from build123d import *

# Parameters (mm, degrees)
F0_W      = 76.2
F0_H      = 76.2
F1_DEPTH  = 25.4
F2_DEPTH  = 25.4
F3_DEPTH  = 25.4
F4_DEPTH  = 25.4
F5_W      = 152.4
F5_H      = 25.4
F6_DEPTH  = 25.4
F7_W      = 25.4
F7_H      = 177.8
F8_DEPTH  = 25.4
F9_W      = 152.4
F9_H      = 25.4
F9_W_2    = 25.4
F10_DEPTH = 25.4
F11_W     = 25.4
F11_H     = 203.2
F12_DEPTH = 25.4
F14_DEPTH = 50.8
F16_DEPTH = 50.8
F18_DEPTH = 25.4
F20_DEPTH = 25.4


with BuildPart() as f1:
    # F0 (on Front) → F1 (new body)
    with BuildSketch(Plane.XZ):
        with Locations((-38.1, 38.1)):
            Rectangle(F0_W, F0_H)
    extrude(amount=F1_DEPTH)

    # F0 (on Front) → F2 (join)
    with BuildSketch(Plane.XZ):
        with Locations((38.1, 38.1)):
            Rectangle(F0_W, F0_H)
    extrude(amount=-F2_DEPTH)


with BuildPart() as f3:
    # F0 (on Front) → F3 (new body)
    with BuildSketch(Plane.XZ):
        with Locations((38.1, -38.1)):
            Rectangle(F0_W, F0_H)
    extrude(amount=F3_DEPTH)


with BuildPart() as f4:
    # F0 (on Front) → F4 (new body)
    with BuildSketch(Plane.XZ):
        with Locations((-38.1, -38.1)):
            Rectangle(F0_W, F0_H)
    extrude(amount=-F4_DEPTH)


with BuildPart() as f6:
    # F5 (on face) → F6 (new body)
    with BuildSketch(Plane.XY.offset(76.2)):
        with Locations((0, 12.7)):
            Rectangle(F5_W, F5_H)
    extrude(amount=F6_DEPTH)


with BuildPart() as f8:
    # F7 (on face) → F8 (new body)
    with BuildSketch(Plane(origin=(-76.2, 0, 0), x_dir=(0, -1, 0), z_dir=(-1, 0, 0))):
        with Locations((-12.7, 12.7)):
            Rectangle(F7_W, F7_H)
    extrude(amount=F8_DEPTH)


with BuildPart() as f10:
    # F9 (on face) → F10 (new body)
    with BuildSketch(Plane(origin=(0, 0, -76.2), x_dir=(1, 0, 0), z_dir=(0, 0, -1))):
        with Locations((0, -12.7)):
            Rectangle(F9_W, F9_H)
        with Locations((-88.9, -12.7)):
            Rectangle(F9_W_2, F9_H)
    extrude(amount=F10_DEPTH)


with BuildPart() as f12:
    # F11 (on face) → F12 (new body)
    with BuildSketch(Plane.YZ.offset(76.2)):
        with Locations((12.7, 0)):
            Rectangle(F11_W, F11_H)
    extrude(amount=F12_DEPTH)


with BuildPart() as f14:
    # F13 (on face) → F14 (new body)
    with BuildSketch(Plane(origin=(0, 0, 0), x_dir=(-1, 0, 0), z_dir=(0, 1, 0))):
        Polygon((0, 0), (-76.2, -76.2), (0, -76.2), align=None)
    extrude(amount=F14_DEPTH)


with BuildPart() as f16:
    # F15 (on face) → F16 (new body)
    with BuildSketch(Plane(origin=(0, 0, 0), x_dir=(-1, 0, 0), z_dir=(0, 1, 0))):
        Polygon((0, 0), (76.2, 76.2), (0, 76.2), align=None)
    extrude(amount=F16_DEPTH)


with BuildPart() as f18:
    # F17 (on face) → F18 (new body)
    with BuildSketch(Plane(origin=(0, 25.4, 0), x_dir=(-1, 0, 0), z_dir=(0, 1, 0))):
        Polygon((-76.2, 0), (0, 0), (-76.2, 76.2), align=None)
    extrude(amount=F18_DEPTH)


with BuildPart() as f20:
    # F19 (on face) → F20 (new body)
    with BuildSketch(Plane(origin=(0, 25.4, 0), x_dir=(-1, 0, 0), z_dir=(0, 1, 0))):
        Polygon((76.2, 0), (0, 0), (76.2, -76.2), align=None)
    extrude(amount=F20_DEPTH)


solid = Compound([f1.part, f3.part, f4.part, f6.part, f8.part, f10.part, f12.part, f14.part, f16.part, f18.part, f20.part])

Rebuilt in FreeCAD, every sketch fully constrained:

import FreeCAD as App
import Part
import Sketcher
from FreeCAD import Vector
Q = App.Units.Quantity

doc = App.newDocument("Part")
params = doc.addObject("Spreadsheet::Sheet", "Params")
for row, (alias, value) in enumerate([
    ("sketch1_width", "3 in"),
    ("pad1_length", "1 in"),
    ("sketch2_width", "3 in"),
    ("pad2_length", "1 in"),
    ("sketch3_width", "3 in"),
    ("pad3_length", "1 in"),
    ("sketch4_width", "3 in"),
    ("pad4_length", "1 in"),
    ("sketch5_width", "6 in"),
    ("sketch5_height", "1 in"),
    ("pad5_length", "1 in"),
    ("sketch6_width", "1 in"),
    ("sketch6_height", "7 in"),
    ("pad6_length", "1 in"),
    ("sketch7_width", "7 in"),
    ("sketch7_height", "1 in"),
    ("pad7_length", "1 in"),
    ("sketch8_width", "1 in"),
    ("sketch8_height", "8 in"),
    ("pad8_length", "1 in"),
    ("sketch9_width", "3 in"),
    ("pad9_length", "2 in"),
    ("sketch10_width", "3 in"),
    ("pad10_length", "2 in"),
    ("sketch11_width", "3 in"),
    ("pad11_length", "1 in"),
    ("sketch12_width", "3 in"),
    ("pad12_length", "1 in"),
], start=1):
    params.set(f"A{row}", alias)
    params.set(f"B{row}", "=" + value)
    params.setAlias(f"B{row}", alias)

body = doc.addObject("PartDesign::Body", "Body")
body.AllowCompound = True

# Sketch on XZ plane
sketch1 = body.newObject("Sketcher::SketchObject", "Sketch")
sketch1.AttachmentSupport = (doc.getObject("XZ_Plane"), [""])
sketch1.MapMode = "FlatFace"
sketch1.addGeometry([
    Part.LineSegment(Vector(-76.2, 76.2, 0), Vector(-76.2, 0, 0)),
    Part.LineSegment(Vector(-76.2, 0, 0), Vector(0, 0, 0)),
    Part.LineSegment(Vector(0, 0, 0), Vector(0, 76.2, 0)),
    Part.LineSegment(Vector(0, 76.2, 0), Vector(-76.2, 76.2, 0)),
], False)
sketch1.addConstraint([
    Sketcher.Constraint("Coincident", 0, 2, 1, 1),
    Sketcher.Constraint("Coincident", 1, 2, 2, 1),
    Sketcher.Constraint("Coincident", 2, 2, 3, 1),
    Sketcher.Constraint("Coincident", 3, 2, 0, 1),
    Sketcher.Constraint("Vertical", 0),
    Sketcher.Constraint("Horizontal", 1),
    Sketcher.Constraint("Vertical", 2),
    Sketcher.Constraint("Horizontal", 3),
    Sketcher.Constraint("Coincident", 1, 2, -1, 1),
    Sketcher.Constraint("Equal", 3, 0),
    Sketcher.Constraint("DistanceX", 1, 1, 1, 2, Q("3 in")),
])
sketch1.setExpression("Constraints[10]", "Params.sketch1_width")
pad1 = body.newObject("PartDesign::Pad", "Pad")
pad1.Profile = sketch1
pad1.setExpression("Length", "Params.pad1_length")

# Sketch on XZ plane
sketch2 = body.newObject("Sketcher::SketchObject", "Sketch001")
sketch2.AttachmentSupport = (doc.getObject("XZ_Plane"), [""])
sketch2.MapMode = "FlatFace"
sketch2.addGeometry([
    Part.LineSegment(Vector(0, 76.2, 0), Vector(0, 0, 0)),
    Part.LineSegment(Vector(0, 0, 0), Vector(76.2, 0, 0)),
    Part.LineSegment(Vector(76.2, 0, 0), Vector(76.2, 76.2, 0)),
    Part.LineSegment(Vector(76.2, 76.2, 0), Vector(0, 76.2, 0)),
], False)
sketch2.addConstraint([
    Sketcher.Constraint("Coincident", 0, 2, 1, 1),
    Sketcher.Constraint("Coincident", 1, 2, 2, 1),
    Sketcher.Constraint("Coincident", 2, 2, 3, 1),
    Sketcher.Constraint("Coincident", 3, 2, 0, 1),
    Sketcher.Constraint("Vertical", 0),
    Sketcher.Constraint("Horizontal", 1),
    Sketcher.Constraint("Vertical", 2),
    Sketcher.Constraint("Horizontal", 3),
    Sketcher.Constraint("Coincident", 0, 2, -1, 1),
    Sketcher.Constraint("Equal", 3, 0),
    Sketcher.Constraint("DistanceX", 1, 1, 1, 2, Q("3 in")),
])
sketch2.setExpression("Constraints[10]", "Params.sketch2_width")
pad2 = body.newObject("PartDesign::Pad", "Pad001")
pad2.Profile = sketch2
pad2.setExpression("Length", "Params.pad2_length")
pad2.Reversed = True
body2 = doc.addObject("PartDesign::Body", "Body001")

# Sketch on XZ plane
sketch3 = body2.newObject("Sketcher::SketchObject", "Sketch002")
sketch3.AttachmentSupport = (doc.getObject("XZ_Plane001"), [""])
sketch3.MapMode = "FlatFace"
sketch3.addGeometry([
    Part.LineSegment(Vector(0, 0, 0), Vector(0, -76.2, 0)),
    Part.LineSegment(Vector(0, -76.2, 0), Vector(76.2, -76.2, 0)),
    Part.LineSegment(Vector(76.2, -76.2, 0), Vector(76.2, 0, 0)),
    Part.LineSegment(Vector(76.2, 0, 0), Vector(0, 0, 0)),
], False)
sketch3.addConstraint([
    Sketcher.Constraint("Coincident", 0, 2, 1, 1),
    Sketcher.Constraint("Coincident", 1, 2, 2, 1),
    Sketcher.Constraint("Coincident", 2, 2, 3, 1),
    Sketcher.Constraint("Coincident", 3, 2, 0, 1),
    Sketcher.Constraint("Vertical", 0),
    Sketcher.Constraint("Horizontal", 1),
    Sketcher.Constraint("Vertical", 2),
    Sketcher.Constraint("Horizontal", 3),
    Sketcher.Constraint("Coincident", 3, 2, -1, 1),
    Sketcher.Constraint("Equal", 3, 0),
    Sketcher.Constraint("DistanceX", 1, 1, 1, 2, Q("3 in")),
])
sketch3.setExpression("Constraints[10]", "Params.sketch3_width")
pad3 = body2.newObject("PartDesign::Pad", "Pad002")
pad3.Profile = sketch3
pad3.setExpression("Length", "Params.pad3_length")
body3 = doc.addObject("PartDesign::Body", "Body002")

# Sketch on XZ plane
sketch4 = body3.newObject("Sketcher::SketchObject", "Sketch003")
sketch4.AttachmentSupport = (doc.getObject("XZ_Plane002"), [""])
sketch4.MapMode = "FlatFace"
sketch4.addGeometry([
    Part.LineSegment(Vector(-76.2, 0, 0), Vector(-76.2, -76.2, 0)),
    Part.LineSegment(Vector(-76.2, -76.2, 0), Vector(0, -76.2, 0)),
    Part.LineSegment(Vector(0, -76.2, 0), Vector(0, 0, 0)),
    Part.LineSegment(Vector(0, 0, 0), Vector(-76.2, 0, 0)),
], False)
sketch4.addConstraint([
    Sketcher.Constraint("Coincident", 0, 2, 1, 1),
    Sketcher.Constraint("Coincident", 1, 2, 2, 1),
    Sketcher.Constraint("Coincident", 2, 2, 3, 1),
    Sketcher.Constraint("Coincident", 3, 2, 0, 1),
    Sketcher.Constraint("Vertical", 0),
    Sketcher.Constraint("Horizontal", 1),
    Sketcher.Constraint("Vertical", 2),
    Sketcher.Constraint("Horizontal", 3),
    Sketcher.Constraint("Coincident", 2, 2, -1, 1),
    Sketcher.Constraint("Equal", 3, 0),
    Sketcher.Constraint("DistanceX", 1, 1, 1, 2, Q("3 in")),
])
sketch4.setExpression("Constraints[10]", "Params.sketch4_width")
pad4 = body3.newObject("PartDesign::Pad", "Pad003")
pad4.Profile = sketch4
pad4.setExpression("Length", "Params.pad4_length")
pad4.Reversed = True
body4 = doc.addObject("PartDesign::Body", "Body003")

# Sketch on XY plane
sketch5 = body4.newObject("Sketcher::SketchObject", "Sketch004")
sketch5.AttachmentSupport = (doc.getObject("XY_Plane003"), [""])
sketch5.MapMode = "FlatFace"
sketch5.AttachmentOffset = App.Placement(Vector(0, 0, 3 * 25.4), App.Rotation())
sketch5.addGeometry([
    Part.LineSegment(Vector(-76.2, 25.4, 0), Vector(-76.2, 0, 0)),
    Part.LineSegment(Vector(-76.2, 0, 0), Vector(76.2, 0, 0)),
    Part.LineSegment(Vector(76.2, 0, 0), Vector(76.2, 25.4, 0)),
    Part.LineSegment(Vector(76.2, 25.4, 0), Vector(-76.2, 25.4, 0)),
], False)
sketch5.addConstraint([
    Sketcher.Constraint("Coincident", 0, 2, 1, 1),
    Sketcher.Constraint("Coincident", 1, 2, 2, 1),
    Sketcher.Constraint("Coincident", 2, 2, 3, 1),
    Sketcher.Constraint("Coincident", 3, 2, 0, 1),
    Sketcher.Constraint("Vertical", 0),
    Sketcher.Constraint("Horizontal", 1),
    Sketcher.Constraint("Vertical", 2),
    Sketcher.Constraint("Horizontal", 3),
    Sketcher.Constraint("Symmetric", 0, 2, 1, 2, -1, 1),
    Sketcher.Constraint("DistanceX", 1, 1, 1, 2, Q("6 in")),
    Sketcher.Constraint("DistanceY", 0, 2, 0, 1, Q("1 in")),
])
sketch5.setExpression("Constraints[9]", "Params.sketch5_width")
sketch5.setExpression("Constraints[10]", "Params.sketch5_height")
pad5 = body4.newObject("PartDesign::Pad", "Pad004")
pad5.Profile = sketch5
pad5.setExpression("Length", "Params.pad5_length")
body5 = doc.addObject("PartDesign::Body", "Body004")

# Sketch on YZ plane
sketch6 = body5.newObject("Sketcher::SketchObject", "Sketch005")
sketch6.AttachmentSupport = (doc.getObject("YZ_Plane004"), [""])
sketch6.MapMode = "FlatFace"
sketch6.AttachmentOffset = App.Placement(Vector(0, 0, -3 * 25.4), App.Rotation())
sketch6.addGeometry([
    Part.LineSegment(Vector(25.4, 101.6, 0), Vector(25.4, -76.2, 0)),
    Part.LineSegment(Vector(25.4, -76.2, 0), Vector(0, -76.2, 0)),
    Part.LineSegment(Vector(0, -76.2, 0), Vector(0, 101.6, 0)),
    Part.LineSegment(Vector(0, 101.6, 0), Vector(25.4, 101.6, 0)),
], False)
sketch6.addConstraint([
    Sketcher.Constraint("Coincident", 0, 2, 1, 1),
    Sketcher.Constraint("Coincident", 1, 2, 2, 1),
    Sketcher.Constraint("Coincident", 2, 2, 3, 1),
    Sketcher.Constraint("Coincident", 3, 2, 0, 1),
    Sketcher.Constraint("Vertical", 0),
    Sketcher.Constraint("Horizontal", 1),
    Sketcher.Constraint("Vertical", 2),
    Sketcher.Constraint("Horizontal", 3),
    Sketcher.Constraint("PointOnObject", 1, 2, -2),
    Sketcher.Constraint("DistanceX", 1, 2, 1, 1, Q("1 in")),
    Sketcher.Constraint("DistanceY", 0, 2, 0, 1, Q("7 in")),
    Sketcher.Constraint("DistanceY", 0, 2, -1, 1, Q("3 in")),
])
sketch6.setExpression("Constraints[9]", "Params.sketch6_width")
sketch6.setExpression("Constraints[10]", "Params.sketch6_height")
pad6 = body5.newObject("PartDesign::Pad", "Pad005")
pad6.Profile = sketch6
pad6.setExpression("Length", "Params.pad6_length")
pad6.Reversed = True
body6 = doc.addObject("PartDesign::Body", "Body005")

# Sketch on XY plane
sketch7 = body6.newObject("Sketcher::SketchObject", "Sketch006")
sketch7.AttachmentSupport = (doc.getObject("XY_Plane005"), [""])
sketch7.MapMode = "FlatFace"
sketch7.AttachmentOffset = App.Placement(Vector(0, 0, -3 * 25.4), App.Rotation())
sketch7.addGeometry([
    Part.LineSegment(Vector(76.2, 25.4, 0), Vector(76.2, 0, 0)),
    Part.LineSegment(Vector(76.2, 0, 0), Vector(-101.6, 0, 0)),
    Part.LineSegment(Vector(-101.6, 0, 0), Vector(-101.6, 25.4, 0)),
    Part.LineSegment(Vector(-101.6, 25.4, 0), Vector(76.2, 25.4, 0)),
], False)
sketch7.addConstraint([
    Sketcher.Constraint("Coincident", 0, 2, 1, 1),
    Sketcher.Constraint("Coincident", 1, 2, 2, 1),
    Sketcher.Constraint("Coincident", 2, 2, 3, 1),
    Sketcher.Constraint("Coincident", 3, 2, 0, 1),
    Sketcher.Constraint("Vertical", 0),
    Sketcher.Constraint("Horizontal", 1),
    Sketcher.Constraint("Vertical", 2),
    Sketcher.Constraint("Horizontal", 3),
    Sketcher.Constraint("PointOnObject", 0, 2, -1),
    Sketcher.Constraint("DistanceX", 1, 2, 1, 1, Q("7 in")),
    Sketcher.Constraint("DistanceY", 0, 2, 0, 1, Q("1 in")),
    Sketcher.Constraint("DistanceX", -1, 1, 0, 2, Q("3 in")),
])
sketch7.setExpression("Constraints[9]", "Params.sketch7_width")
sketch7.setExpression("Constraints[10]", "Params.sketch7_height")
pad7 = body6.newObject("PartDesign::Pad", "Pad006")
pad7.Profile = sketch7
pad7.setExpression("Length", "Params.pad7_length")
pad7.Reversed = True
body7 = doc.addObject("PartDesign::Body", "Body006")

# Sketch on YZ plane
sketch8 = body7.newObject("Sketcher::SketchObject", "Sketch007")
sketch8.AttachmentSupport = (doc.getObject("YZ_Plane006"), [""])
sketch8.MapMode = "FlatFace"
sketch8.AttachmentOffset = App.Placement(Vector(0, 0, 3 * 25.4), App.Rotation())
sketch8.addGeometry([
    Part.LineSegment(Vector(0, 101.6, 0), Vector(0, -101.6, 0)),
    Part.LineSegment(Vector(0, -101.6, 0), Vector(25.4, -101.6, 0)),
    Part.LineSegment(Vector(25.4, -101.6, 0), Vector(25.4, 101.6, 0)),
    Part.LineSegment(Vector(25.4, 101.6, 0), Vector(0, 101.6, 0)),
], False)
sketch8.addConstraint([
    Sketcher.Constraint("Coincident", 0, 2, 1, 1),
    Sketcher.Constraint("Coincident", 1, 2, 2, 1),
    Sketcher.Constraint("Coincident", 2, 2, 3, 1),
    Sketcher.Constraint("Coincident", 3, 2, 0, 1),
    Sketcher.Constraint("Vertical", 0),
    Sketcher.Constraint("Horizontal", 1),
    Sketcher.Constraint("Vertical", 2),
    Sketcher.Constraint("Horizontal", 3),
    Sketcher.Constraint("Symmetric", 0, 2, 3, 2, -1, 1),
    Sketcher.Constraint("DistanceX", 1, 1, 1, 2, Q("1 in")),
    Sketcher.Constraint("DistanceY", 0, 2, 0, 1, Q("8 in")),
])
sketch8.setExpression("Constraints[9]", "Params.sketch8_width")
sketch8.setExpression("Constraints[10]", "Params.sketch8_height")
pad8 = body7.newObject("PartDesign::Pad", "Pad007")
pad8.Profile = sketch8
pad8.setExpression("Length", "Params.pad8_length")
body8 = doc.addObject("PartDesign::Body", "Body007")

# Sketch on XZ plane
sketch9 = body8.newObject("Sketcher::SketchObject", "Sketch008")
sketch9.AttachmentSupport = (doc.getObject("XZ_Plane007"), [""])
sketch9.MapMode = "FlatFace"
sketch9.addGeometry([
    Part.LineSegment(Vector(0, 0, 0), Vector(76.2, -76.2, 0)),
    Part.LineSegment(Vector(76.2, -76.2, 0), Vector(0, -76.2, 0)),
    Part.LineSegment(Vector(0, -76.2, 0), Vector(0, 0, 0)),
], False)
sketch9.addConstraint([
    Sketcher.Constraint("Coincident", 0, 2, 1, 1),
    Sketcher.Constraint("Coincident", 1, 2, 2, 1),
    Sketcher.Constraint("Coincident", 2, 2, 0, 1),
    Sketcher.Constraint("Horizontal", 1),
    Sketcher.Constraint("Vertical", 2),
    Sketcher.Constraint("Coincident", 2, 2, -1, 1),
    Sketcher.Constraint("Equal", 1, 2),
    Sketcher.Constraint("DistanceX", 1, 2, 1, 1, Q("3 in")),
])
sketch9.setExpression("Constraints[7]", "Params.sketch9_width")
pad9 = body8.newObject("PartDesign::Pad", "Pad008")
pad9.Profile = sketch9
pad9.setExpression("Length", "Params.pad9_length")
pad9.Reversed = True
body9 = doc.addObject("PartDesign::Body", "Body008")

# Sketch on XZ plane
sketch10 = body9.newObject("Sketcher::SketchObject", "Sketch009")
sketch10.AttachmentSupport = (doc.getObject("XZ_Plane008"), [""])
sketch10.MapMode = "FlatFace"
sketch10.addGeometry([
    Part.LineSegment(Vector(0, 0, 0), Vector(-76.2, 76.2, 0)),
    Part.LineSegment(Vector(-76.2, 76.2, 0), Vector(0, 76.2, 0)),
    Part.LineSegment(Vector(0, 76.2, 0), Vector(0, 0, 0)),
], False)
sketch10.addConstraint([
    Sketcher.Constraint("Coincident", 0, 2, 1, 1),
    Sketcher.Constraint("Coincident", 1, 2, 2, 1),
    Sketcher.Constraint("Coincident", 2, 2, 0, 1),
    Sketcher.Constraint("Horizontal", 1),
    Sketcher.Constraint("Vertical", 2),
    Sketcher.Constraint("Coincident", 2, 2, -1, 1),
    Sketcher.Constraint("Equal", 1, 2),
    Sketcher.Constraint("DistanceX", 1, 1, 1, 2, Q("3 in")),
])
sketch10.setExpression("Constraints[7]", "Params.sketch10_width")
pad10 = body9.newObject("PartDesign::Pad", "Pad009")
pad10.Profile = sketch10
pad10.setExpression("Length", "Params.pad10_length")
pad10.Reversed = True
body10 = doc.addObject("PartDesign::Body", "Body009")

# Sketch on XZ plane
sketch11 = body10.newObject("Sketcher::SketchObject", "Sketch010")
sketch11.AttachmentSupport = (doc.getObject("XZ_Plane009"), [""])
sketch11.MapMode = "FlatFace"
sketch11.AttachmentOffset = App.Placement(Vector(0, 0, -1 * 25.4), App.Rotation())
sketch11.addGeometry([
    Part.LineSegment(Vector(76.2, 0, 0), Vector(0, 0, 0)),
    Part.LineSegment(Vector(0, 0, 0), Vector(76.2, 76.2, 0)),
    Part.LineSegment(Vector(76.2, 76.2, 0), Vector(76.2, 0, 0)),
], False)
sketch11.addConstraint([
    Sketcher.Constraint("Coincident", 0, 2, 1, 1),
    Sketcher.Constraint("Coincident", 1, 2, 2, 1),
    Sketcher.Constraint("Coincident", 2, 2, 0, 1),
    Sketcher.Constraint("Horizontal", 0),
    Sketcher.Constraint("Vertical", 2),
    Sketcher.Constraint("Coincident", 0, 2, -1, 1),
    Sketcher.Constraint("Equal", 0, 2),
    Sketcher.Constraint("DistanceX", 0, 2, 0, 1, Q("3 in")),
])
sketch11.setExpression("Constraints[7]", "Params.sketch11_width")
pad11 = body10.newObject("PartDesign::Pad", "Pad010")
pad11.Profile = sketch11
pad11.setExpression("Length", "Params.pad11_length")
pad11.Reversed = True
body11 = doc.addObject("PartDesign::Body", "Body010")

# Sketch on XZ plane
sketch12 = body11.newObject("Sketcher::SketchObject", "Sketch011")
sketch12.AttachmentSupport = (doc.getObject("XZ_Plane010"), [""])
sketch12.MapMode = "FlatFace"
sketch12.AttachmentOffset = App.Placement(Vector(0, 0, -1 * 25.4), App.Rotation())
sketch12.addGeometry([
    Part.LineSegment(Vector(-76.2, 0, 0), Vector(0, 0, 0)),
    Part.LineSegment(Vector(0, 0, 0), Vector(-76.2, -76.2, 0)),
    Part.LineSegment(Vector(-76.2, -76.2, 0), Vector(-76.2, 0, 0)),
], False)
sketch12.addConstraint([
    Sketcher.Constraint("Coincident", 0, 2, 1, 1),
    Sketcher.Constraint("Coincident", 1, 2, 2, 1),
    Sketcher.Constraint("Coincident", 2, 2, 0, 1),
    Sketcher.Constraint("Horizontal", 0),
    Sketcher.Constraint("Vertical", 2),
    Sketcher.Constraint("Coincident", 0, 2, -1, 1),
    Sketcher.Constraint("Equal", 0, 2),
    Sketcher.Constraint("DistanceX", 0, 1, 0, 2, Q("3 in")),
])
sketch12.setExpression("Constraints[7]", "Params.sketch12_width")
pad12 = body11.newObject("PartDesign::Pad", "Pad011")
pad12.Profile = sketch12
pad12.setExpression("Length", "Params.pad12_length")
pad12.Reversed = True

doc.recompute()
